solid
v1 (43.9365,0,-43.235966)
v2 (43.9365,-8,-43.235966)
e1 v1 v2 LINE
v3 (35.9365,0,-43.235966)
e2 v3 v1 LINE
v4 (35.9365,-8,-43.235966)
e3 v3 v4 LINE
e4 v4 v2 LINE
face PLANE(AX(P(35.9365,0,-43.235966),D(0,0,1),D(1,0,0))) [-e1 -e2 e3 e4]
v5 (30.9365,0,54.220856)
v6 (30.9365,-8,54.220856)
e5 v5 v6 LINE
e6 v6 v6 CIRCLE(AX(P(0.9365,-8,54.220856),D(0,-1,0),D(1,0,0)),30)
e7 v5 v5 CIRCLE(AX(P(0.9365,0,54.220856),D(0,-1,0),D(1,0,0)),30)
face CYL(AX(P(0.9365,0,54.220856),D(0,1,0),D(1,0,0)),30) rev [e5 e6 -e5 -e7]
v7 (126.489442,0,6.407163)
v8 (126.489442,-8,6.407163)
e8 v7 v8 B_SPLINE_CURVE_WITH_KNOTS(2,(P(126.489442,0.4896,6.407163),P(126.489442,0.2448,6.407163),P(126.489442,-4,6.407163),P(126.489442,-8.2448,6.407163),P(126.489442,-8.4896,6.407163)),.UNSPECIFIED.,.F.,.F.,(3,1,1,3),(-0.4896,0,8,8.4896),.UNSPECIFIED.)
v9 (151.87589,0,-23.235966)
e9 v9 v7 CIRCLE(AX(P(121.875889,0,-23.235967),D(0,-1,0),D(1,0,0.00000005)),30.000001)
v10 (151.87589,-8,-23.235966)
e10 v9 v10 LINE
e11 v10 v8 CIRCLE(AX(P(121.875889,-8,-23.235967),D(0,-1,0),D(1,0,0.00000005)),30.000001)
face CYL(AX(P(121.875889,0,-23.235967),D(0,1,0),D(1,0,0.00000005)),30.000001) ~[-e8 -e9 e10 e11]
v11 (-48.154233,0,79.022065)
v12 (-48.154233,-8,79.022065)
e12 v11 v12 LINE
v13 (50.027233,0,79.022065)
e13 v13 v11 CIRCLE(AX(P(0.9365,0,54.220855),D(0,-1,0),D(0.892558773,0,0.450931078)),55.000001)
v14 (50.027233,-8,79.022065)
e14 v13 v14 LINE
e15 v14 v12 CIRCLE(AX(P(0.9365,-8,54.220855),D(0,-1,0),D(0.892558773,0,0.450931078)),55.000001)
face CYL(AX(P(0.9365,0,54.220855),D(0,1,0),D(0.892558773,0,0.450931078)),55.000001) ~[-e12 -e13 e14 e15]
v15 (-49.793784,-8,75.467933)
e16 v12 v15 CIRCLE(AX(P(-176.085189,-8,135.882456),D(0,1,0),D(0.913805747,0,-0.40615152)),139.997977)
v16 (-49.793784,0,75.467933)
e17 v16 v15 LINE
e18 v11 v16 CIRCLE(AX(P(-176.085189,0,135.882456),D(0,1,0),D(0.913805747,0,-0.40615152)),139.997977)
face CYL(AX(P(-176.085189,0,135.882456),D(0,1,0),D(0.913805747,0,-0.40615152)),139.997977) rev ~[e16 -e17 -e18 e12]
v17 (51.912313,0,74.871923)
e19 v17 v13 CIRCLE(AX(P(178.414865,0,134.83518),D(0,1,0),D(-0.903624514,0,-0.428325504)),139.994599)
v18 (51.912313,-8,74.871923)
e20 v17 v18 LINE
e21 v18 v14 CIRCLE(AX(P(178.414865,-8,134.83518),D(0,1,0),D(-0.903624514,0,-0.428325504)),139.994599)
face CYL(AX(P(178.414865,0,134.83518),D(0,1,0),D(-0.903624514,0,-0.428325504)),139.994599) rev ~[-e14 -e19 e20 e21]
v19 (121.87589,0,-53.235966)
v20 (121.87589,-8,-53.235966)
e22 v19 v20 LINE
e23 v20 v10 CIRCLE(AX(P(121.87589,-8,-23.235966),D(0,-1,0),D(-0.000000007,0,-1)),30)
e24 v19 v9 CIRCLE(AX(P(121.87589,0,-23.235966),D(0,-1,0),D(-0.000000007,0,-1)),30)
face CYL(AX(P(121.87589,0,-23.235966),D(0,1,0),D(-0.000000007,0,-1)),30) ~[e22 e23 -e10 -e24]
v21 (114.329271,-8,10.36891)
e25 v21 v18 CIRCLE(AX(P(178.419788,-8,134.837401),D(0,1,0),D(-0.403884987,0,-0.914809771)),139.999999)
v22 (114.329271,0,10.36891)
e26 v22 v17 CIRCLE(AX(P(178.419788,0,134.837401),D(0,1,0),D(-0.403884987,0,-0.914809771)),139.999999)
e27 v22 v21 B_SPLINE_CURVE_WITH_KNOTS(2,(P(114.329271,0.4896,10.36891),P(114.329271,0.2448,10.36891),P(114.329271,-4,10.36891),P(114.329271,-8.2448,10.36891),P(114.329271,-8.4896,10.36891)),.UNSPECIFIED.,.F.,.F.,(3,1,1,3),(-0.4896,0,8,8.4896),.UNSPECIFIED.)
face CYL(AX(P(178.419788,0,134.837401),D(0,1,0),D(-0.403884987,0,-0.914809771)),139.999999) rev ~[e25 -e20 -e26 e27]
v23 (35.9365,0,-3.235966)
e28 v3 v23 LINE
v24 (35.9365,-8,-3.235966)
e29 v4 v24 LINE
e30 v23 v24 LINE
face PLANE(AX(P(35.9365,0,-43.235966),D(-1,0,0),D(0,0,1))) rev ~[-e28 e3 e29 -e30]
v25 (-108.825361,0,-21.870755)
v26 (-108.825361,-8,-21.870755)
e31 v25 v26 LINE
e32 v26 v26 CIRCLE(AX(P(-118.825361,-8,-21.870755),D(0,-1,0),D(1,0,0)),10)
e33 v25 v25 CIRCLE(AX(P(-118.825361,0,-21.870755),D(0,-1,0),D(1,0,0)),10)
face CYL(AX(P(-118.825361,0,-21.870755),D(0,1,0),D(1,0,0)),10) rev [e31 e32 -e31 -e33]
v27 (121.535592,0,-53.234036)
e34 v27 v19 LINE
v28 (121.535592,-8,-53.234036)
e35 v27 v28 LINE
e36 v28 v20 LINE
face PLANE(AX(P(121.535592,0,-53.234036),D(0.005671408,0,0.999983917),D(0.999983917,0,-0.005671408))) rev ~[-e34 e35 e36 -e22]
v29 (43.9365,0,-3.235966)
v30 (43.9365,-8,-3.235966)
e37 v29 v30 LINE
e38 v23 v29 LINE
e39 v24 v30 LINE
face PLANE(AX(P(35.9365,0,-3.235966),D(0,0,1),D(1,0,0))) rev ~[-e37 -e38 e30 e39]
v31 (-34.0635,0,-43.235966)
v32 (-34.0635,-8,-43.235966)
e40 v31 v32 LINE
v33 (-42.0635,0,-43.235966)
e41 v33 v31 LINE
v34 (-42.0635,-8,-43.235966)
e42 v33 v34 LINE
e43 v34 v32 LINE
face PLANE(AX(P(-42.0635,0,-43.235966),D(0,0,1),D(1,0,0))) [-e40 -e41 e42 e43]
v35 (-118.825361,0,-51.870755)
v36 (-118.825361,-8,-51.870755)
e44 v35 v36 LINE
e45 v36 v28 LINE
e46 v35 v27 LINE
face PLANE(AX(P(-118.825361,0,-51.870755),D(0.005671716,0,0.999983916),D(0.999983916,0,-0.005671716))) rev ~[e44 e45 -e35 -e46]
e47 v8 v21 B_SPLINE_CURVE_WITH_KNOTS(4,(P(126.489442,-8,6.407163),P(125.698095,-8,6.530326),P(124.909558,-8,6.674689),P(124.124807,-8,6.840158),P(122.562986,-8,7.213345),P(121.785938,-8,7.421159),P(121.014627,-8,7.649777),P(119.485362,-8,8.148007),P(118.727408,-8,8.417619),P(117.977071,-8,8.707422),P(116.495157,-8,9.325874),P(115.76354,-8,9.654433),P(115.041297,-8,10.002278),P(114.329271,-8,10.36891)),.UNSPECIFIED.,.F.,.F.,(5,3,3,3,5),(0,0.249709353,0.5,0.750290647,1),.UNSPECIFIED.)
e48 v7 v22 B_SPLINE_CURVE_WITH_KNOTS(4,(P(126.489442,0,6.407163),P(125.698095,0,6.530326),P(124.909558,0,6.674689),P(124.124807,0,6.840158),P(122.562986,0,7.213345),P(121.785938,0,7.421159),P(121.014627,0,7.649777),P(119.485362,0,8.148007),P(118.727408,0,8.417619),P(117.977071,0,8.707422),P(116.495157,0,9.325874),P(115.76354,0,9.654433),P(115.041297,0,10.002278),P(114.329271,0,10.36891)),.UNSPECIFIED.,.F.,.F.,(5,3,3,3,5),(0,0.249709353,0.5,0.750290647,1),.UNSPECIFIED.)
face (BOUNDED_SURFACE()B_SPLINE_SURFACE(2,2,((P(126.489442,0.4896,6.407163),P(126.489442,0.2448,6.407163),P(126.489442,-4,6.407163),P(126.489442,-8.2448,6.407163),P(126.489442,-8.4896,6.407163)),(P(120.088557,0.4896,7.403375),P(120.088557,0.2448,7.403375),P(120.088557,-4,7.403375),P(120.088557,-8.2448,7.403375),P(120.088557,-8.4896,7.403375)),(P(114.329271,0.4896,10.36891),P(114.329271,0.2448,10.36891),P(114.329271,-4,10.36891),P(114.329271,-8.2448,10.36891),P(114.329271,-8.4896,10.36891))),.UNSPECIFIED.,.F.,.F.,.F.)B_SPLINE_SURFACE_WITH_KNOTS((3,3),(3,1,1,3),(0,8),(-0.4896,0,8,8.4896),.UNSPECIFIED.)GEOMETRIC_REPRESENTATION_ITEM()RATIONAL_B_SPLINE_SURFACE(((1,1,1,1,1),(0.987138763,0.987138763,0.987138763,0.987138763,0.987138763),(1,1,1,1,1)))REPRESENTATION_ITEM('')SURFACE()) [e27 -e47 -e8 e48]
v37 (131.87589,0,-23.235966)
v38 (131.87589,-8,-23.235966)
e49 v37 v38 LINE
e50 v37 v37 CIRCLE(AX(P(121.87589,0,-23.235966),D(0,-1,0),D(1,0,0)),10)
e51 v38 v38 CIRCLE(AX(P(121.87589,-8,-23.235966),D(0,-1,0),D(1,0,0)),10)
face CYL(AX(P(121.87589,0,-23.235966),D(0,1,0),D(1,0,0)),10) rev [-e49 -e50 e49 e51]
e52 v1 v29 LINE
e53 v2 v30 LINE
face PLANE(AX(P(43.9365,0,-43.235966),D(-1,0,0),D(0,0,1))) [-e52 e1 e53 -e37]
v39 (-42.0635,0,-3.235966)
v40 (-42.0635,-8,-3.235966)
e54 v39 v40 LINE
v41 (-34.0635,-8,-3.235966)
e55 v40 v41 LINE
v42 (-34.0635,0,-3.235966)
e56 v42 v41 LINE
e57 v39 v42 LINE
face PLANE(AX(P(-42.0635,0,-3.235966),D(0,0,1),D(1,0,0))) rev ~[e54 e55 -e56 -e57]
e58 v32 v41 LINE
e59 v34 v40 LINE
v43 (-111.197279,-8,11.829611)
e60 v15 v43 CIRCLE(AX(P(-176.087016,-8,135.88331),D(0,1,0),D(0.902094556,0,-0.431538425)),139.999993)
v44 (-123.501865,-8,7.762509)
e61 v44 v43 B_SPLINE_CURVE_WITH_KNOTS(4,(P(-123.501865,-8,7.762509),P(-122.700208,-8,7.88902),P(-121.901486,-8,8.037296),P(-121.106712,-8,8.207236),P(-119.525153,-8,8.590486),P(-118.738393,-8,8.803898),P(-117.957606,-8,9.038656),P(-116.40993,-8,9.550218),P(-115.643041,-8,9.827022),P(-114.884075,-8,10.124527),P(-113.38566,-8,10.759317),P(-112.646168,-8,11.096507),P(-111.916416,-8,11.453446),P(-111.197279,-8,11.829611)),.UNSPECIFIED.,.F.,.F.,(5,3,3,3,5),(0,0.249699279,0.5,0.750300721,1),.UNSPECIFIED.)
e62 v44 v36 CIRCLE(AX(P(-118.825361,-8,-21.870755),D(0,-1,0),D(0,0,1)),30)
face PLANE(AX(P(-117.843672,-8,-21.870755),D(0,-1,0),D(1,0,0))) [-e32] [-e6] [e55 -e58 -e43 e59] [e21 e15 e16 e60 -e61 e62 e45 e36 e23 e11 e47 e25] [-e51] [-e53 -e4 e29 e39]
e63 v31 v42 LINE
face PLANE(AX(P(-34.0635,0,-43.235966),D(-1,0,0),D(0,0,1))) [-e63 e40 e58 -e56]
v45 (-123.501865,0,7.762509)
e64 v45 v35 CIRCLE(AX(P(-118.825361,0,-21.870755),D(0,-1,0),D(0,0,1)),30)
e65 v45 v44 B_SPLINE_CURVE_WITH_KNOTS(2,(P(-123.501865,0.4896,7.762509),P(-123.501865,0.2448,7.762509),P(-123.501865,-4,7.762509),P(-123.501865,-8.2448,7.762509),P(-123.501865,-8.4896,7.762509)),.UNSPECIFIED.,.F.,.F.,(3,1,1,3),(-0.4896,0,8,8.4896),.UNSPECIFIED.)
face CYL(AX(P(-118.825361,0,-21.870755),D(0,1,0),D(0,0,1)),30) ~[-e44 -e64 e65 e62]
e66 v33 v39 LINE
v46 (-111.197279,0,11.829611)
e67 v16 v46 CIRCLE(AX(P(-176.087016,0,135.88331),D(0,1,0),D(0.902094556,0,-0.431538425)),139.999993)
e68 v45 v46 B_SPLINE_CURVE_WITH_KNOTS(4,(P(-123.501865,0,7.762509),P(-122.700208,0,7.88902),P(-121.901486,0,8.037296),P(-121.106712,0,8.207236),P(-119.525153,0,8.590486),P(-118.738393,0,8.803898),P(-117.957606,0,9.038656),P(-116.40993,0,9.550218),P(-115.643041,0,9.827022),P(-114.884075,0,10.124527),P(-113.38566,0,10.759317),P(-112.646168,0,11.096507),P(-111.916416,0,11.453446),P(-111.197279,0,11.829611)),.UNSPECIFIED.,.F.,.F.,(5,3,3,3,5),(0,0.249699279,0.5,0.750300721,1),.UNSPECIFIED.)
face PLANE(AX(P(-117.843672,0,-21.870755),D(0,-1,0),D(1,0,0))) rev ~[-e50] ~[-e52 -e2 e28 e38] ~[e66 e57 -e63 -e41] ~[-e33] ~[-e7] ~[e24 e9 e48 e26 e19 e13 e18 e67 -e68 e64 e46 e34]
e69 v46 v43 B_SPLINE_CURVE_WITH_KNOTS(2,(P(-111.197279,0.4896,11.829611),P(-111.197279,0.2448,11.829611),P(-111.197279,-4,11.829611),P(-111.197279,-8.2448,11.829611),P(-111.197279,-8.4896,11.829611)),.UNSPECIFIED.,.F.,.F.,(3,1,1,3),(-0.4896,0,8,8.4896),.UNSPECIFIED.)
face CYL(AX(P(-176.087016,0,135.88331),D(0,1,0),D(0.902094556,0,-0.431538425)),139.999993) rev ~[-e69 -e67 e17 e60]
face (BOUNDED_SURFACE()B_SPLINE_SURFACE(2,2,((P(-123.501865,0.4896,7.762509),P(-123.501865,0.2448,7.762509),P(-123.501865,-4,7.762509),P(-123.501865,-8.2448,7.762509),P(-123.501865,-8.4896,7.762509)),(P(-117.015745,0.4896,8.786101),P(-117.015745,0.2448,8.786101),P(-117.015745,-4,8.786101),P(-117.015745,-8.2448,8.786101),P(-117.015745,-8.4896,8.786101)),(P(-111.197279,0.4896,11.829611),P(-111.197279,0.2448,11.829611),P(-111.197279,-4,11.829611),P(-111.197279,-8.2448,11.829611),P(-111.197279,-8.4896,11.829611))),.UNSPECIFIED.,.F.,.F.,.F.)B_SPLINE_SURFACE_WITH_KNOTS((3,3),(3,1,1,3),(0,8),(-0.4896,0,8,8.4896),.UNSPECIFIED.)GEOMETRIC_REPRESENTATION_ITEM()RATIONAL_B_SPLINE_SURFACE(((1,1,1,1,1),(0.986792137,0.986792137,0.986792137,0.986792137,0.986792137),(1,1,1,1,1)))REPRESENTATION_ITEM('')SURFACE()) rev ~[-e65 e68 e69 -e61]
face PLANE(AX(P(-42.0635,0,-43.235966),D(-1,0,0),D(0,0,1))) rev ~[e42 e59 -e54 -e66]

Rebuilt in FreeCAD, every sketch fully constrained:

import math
import FreeCAD as App
import Part
import Sketcher
from FreeCAD import Vector


def edges_at(feature, points):
    """Names of the edges that pass closest to the given points."""
    edges = feature.Shape.Edges
    near = lambda p: min(range(len(edges)), key=lambda i: edges[i].distToShape(Part.Vertex(*p))[0])
    return sorted({f"Edge{near(p) + 1}" for p in points})

doc = App.newDocument("Part")
params = doc.addObject("Spreadsheet::Sheet", "Params")
for row, (alias, value) in enumerate([
    ("sketch1_diameter", "20 mm"),
    ("sketch1_diameter2", "20 mm"),
    ("sketch1_diameter3", "60 mm"),
    ("sketch1_radius", "30 mm"),
    ("sketch1_radius2", "30 mm"),
    ("pad1_length", "8 mm"),
    ("fillet_radius", "40 mm"),
], start=1):
    params.set(f"A{row}", alias)
    params.set(f"B{row}", "=" + value)
    params.setAlias(f"B{row}", alias)

body = doc.addObject("PartDesign::Body", "Body")

sketch1 = doc.addObject("Sketcher::SketchObject", "Sketch")
body.addObject(sketch1)
sketch1.AttachmentSupport = (doc.XZ_Plane, [""])
sketch1.MapMode = "FlatFace"
sketch1.addGeometry([
    Part.ArcOfCircle(Part.Circle(Vector(-118.825361, -21.870755, 0), Vector(0, 0, 1), 30), math.radians(90), math.radians(270)),
    Part.LineSegment(Vector(-118.825361, -51.870755, 0), Vector(121.535592, -53.234036, 0)),
    Part.LineSegment(Vector(121.535592, -53.234036, 0), Vector(121.87589, -53.235966, 0)),
    Part.ArcOfCircle(Part.Circle(Vector(121.87589, -23.235966, 0), Vector(0, 0, 1), 30), math.radians(-90), math.radians(0)),
    Part.ArcOfCircle(Part.Circle(Vector(121.875889, -23.235967, 0), Vector(0, 0, 1), 30.000001), math.radians(0.000003), math.radians(89.999997)),
    Part.ArcOfCircle(Part.Circle(Vector(178.419788, 134.837401, 0), Vector(0, 0, 1), 139.999999), math.radians(-154.638702), math.radians(-113.821274)),
    Part.ArcOfCircle(Part.Circle(Vector(178.414865, 134.83518, 0), Vector(0, 0, 1), 139.994599), math.radians(-156.504285), math.radians(-154.638661)),
    Part.ArcOfCircle(Part.Circle(Vector(0.9365, 54.220855, 0), Vector(0, 0, 1), 55.000001), math.radians(26.803437), math.radians(153.196563)),
    Part.ArcOfCircle(Part.Circle(Vector(-176.085189, 135.882456, 0), Vector(0, 0, 1), 139.997977), math.radians(-25.56524), math.radians(-23.963307)),
    Part.ArcOfCircle(Part.Circle(Vector(-176.087016, 135.88331, 0), Vector(0, 0, 1), 139.999993), math.radians(-65.857225), math.radians(-25.565232)),
    Part.Circle(Vector(-118.825361, -21.870755, 0), Vector(0, 0, 1), 10),
    Part.LineSegment(Vector(-34.0635, -43.235966, 0), Vector(-42.0635, -43.235966, 0)),
    Part.LineSegment(Vector(-42.0635, -43.235966, 0), Vector(-42.0635, -3.235966, 0)),
    Part.LineSegment(Vector(-42.0635, -3.235966, 0), Vector(-34.0635, -3.235966, 0)),
    Part.LineSegment(Vector(-34.0635, -3.235966, 0), Vector(-34.0635, -43.235966, 0)),
    Part.LineSegment(Vector(43.9365, -43.235966, 0), Vector(35.9365, -43.235966, 0)),
    Part.LineSegment(Vector(35.9365, -43.235966, 0), Vector(35.9365, -3.235966, 0)),
    Part.LineSegment(Vector(35.9365, -3.235966, 0), Vector(43.9365, -3.235966, 0)),
    Part.LineSegment(Vector(43.9365, -3.235966, 0), Vector(43.9365, -43.235966, 0)),
    Part.Circle(Vector(121.87589, -23.235966, 0), Vector(0, 0, 1), 10),
    Part.Circle(Vector(0.9365, 54.220856, 0), Vector(0, 0, 1), 30),
], False)
sketch1.addConstraint([
    Sketcher.Constraint("Coincident", 0, 2, 1, 1),
    Sketcher.Constraint("Coincident", 1, 2, 2, 1),
    Sketcher.Constraint("Coincident", 2, 2, 3, 1),
    Sketcher.Constraint("Coincident", 3, 2, 4, 1),
    Sketcher.Constraint("Coincident", 4, 2, 5, 2),
    Sketcher.Constraint("Coincident", 5, 1, 6, 2),
    Sketcher.Constraint("Coincident", 6, 1, 7, 1),
    Sketcher.Constraint("Coincident", 7, 2, 8, 2),
    Sketcher.Constraint("Coincident", 8, 1, 9, 2),
    Sketcher.Constraint("Coincident", 9, 1, 0, 1),
    Sketcher.Constraint("Coincident", 11, 2, 12, 1),
    Sketcher.Constraint("Coincident", 12, 2, 13, 1),
    Sketcher.Constraint("Coincident", 13, 2, 14, 1),
    Sketcher.Constraint("Coincident", 14, 2, 11, 1),
    Sketcher.Constraint("Coincident", 15, 2, 16, 1),
    Sketcher.Constraint("Coincident", 16, 2, 17, 1),
    Sketcher.Constraint("Coincident", 17, 2, 18, 1),
    Sketcher.Constraint("Coincident", 18, 2, 15, 1),
    Sketcher.Constraint("Horizontal", 11),
    Sketcher.Constraint("Vertical", 12),
    Sketcher.Constraint("Horizontal", 13),
    Sketcher.Constraint("Vertical", 14),
    Sketcher.Constraint("Horizontal", 15),
    Sketcher.Constraint("Vertical", 16),
    Sketcher.Constraint("Horizontal", 17),
    Sketcher.Constraint("Vertical", 18),
    Sketcher.Constraint("Coincident", 4, 3, 3, 3),
    Sketcher.Constraint("Coincident", 10, 3, 0, 3),
    Sketcher.Constraint("Coincident", 19, 3, 3, 3),
    Sketcher.Constraint("Coincident", 20, 3, 7, 3),
    Sketcher.Constraint("Diameter", 10, 20.0),
    Sketcher.Constraint("Diameter", 19, 20.0),
    Sketcher.Constraint("Diameter", 20, 60.0),
    Sketcher.Constraint("Radius", 0, 30.0),
    Sketcher.Constraint("Radius", 3, 30.0),
    Sketcher.Constraint("Radius", 5, 139.999999),
    Sketcher.Constraint("Radius", 7, 55.000001),
    Sketcher.Constraint("DistanceX", 11, 2, 11, 1, 8.0),
    Sketcher.Constraint("DistanceX", 15, 2, 15, 1, 8.0),
    Sketcher.Constraint("DistanceY", 12, 1, 12, 2, 40.0),
    Sketcher.Constraint("DistanceY", 16, 1, 16, 2, 40.0),
    Sketcher.Constraint("DistanceX", 2, 2, 3, 2, 30.0),
    Sketcher.Constraint("DistanceY", 2, 2, 3, 2, 30.0),
    Sketcher.Constraint("DistanceX", 4, 2, 3, 2, 30.0),
    Sketcher.Constraint("DistanceX", 11, 2, 7, 3, 43.0),
    Sketcher.Constraint("DistanceX", 14, 2, 15, 2, 70.0),
    Sketcher.Constraint("DistanceY", 15, 2, 13, 2, 40.0),
    Sketcher.Constraint("DistanceY", 2, 2, 15, 2, 10.0),
    Sketcher.Constraint("Radius", 6, 139.994599),
    Sketcher.Constraint("Radius", 8, 139.997977),
    Sketcher.Constraint("Radius", 9, 139.999993),
    Sketcher.Constraint("DistanceY", -1, 1, 5, 3, 134.837401),
    Sketcher.Constraint("DistanceX", -1, 1, 7, 3, 0.9365),
    Sketcher.Constraint("DistanceX", 4, 3, 5, 3, 56.543899),
    Sketcher.Constraint("DistanceY", 7, 3, 8, 3, 81.661601),
    Sketcher.Constraint("DistanceX", 1, 2, 3, 3, 0.340298),
    Sketcher.Constraint("DistanceY", 13, 2, 8, 1, 78.703899),
    Sketcher.Constraint("Distance", 1, 240.364819),
    Sketcher.Constraint("DistanceX", 0, 3, -1, 1, 118.825361),
    Sketcher.Constraint("DistanceX", -1, 1, 3, 3, 121.87589),
    Sketcher.Constraint("DistanceY", -1, 1, 6, 3, 134.83518),
    Sketcher.Constraint("DistanceX", 8, 3, -1, 1, 176.085189),
    Sketcher.Constraint("DistanceY", -1, 1, 9, 3, 135.88331),
    Sketcher.Constraint("DistanceX", 9, 1, -1, 1, 118.825361),
    Sketcher.Constraint("DistanceY", 3, 3, 0, 3, 1.365211),
    Sketcher.Constraint("DistanceY", 1, 2, 4, 3, 29.998069),
    Sketcher.Constraint("DistanceY", 4, 2, 5, 1, 68.107889),
])
sketch1.setExpression("Constraints[30]", "Params.sketch1_diameter")
sketch1.setExpression("Constraints[31]", "Params.sketch1_diameter2")
sketch1.setExpression("Constraints[32]", "Params.sketch1_diameter3")
sketch1.setExpression("Constraints[33]", "Params.sketch1_radius")
sketch1.setExpression("Constraints[34]", "Params.sketch1_radius2")
pad1 = doc.addObject("PartDesign::Pad", "Pad")
body.addObject(pad1)
pad1.Profile = sketch1
pad1.setExpression("Length", "Params.pad1_length")
doc.recompute()

fillet = doc.addObject("PartDesign::Fillet", "Fillet")
body.addObject(fillet)
fillet.Base = (pad1, edges_at(pad1, [(-118.825, -4, 8.129), (121.876, -4, 6.764)]))
fillet.setExpression("Radius", "Params.fillet_radius")

doc.recompute()
